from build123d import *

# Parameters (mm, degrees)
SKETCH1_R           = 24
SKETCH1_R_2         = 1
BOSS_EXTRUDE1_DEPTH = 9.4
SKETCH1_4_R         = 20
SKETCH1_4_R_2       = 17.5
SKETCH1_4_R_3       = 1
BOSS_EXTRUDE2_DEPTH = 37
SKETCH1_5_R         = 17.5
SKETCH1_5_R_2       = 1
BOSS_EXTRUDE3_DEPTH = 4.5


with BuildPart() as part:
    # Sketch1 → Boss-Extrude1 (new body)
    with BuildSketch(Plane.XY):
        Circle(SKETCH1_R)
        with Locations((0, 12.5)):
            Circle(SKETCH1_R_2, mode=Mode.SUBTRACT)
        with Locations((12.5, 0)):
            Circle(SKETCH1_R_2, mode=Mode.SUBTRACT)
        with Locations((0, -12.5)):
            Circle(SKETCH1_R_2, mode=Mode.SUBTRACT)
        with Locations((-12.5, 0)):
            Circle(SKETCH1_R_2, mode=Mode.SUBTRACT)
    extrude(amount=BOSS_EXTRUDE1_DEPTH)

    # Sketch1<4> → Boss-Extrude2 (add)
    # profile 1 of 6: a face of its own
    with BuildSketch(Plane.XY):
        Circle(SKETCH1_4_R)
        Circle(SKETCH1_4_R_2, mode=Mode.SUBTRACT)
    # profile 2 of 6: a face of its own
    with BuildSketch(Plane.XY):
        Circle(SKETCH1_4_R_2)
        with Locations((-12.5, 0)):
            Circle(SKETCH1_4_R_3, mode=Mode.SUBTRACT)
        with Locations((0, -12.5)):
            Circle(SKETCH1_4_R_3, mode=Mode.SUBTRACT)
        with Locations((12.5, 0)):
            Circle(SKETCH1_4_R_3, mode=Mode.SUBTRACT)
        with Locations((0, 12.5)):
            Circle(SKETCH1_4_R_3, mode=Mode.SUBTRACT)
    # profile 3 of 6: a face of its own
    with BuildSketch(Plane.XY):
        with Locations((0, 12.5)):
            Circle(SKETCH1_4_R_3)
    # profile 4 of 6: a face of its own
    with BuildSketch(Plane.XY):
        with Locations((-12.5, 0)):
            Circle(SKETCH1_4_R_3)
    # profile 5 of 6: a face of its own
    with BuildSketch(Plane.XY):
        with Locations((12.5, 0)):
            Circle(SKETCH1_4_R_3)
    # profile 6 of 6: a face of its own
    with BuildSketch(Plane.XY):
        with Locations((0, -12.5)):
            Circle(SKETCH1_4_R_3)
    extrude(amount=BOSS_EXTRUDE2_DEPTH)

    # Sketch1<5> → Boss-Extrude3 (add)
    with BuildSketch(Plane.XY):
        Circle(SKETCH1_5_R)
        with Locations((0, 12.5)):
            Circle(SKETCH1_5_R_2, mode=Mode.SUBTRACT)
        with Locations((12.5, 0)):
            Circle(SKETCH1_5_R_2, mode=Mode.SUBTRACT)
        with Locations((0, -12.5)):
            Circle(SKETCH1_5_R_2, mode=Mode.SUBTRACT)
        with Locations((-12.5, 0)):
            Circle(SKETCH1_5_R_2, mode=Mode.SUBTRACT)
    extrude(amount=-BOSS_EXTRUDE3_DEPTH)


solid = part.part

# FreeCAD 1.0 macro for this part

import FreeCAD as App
import Part
import Sketcher

doc = App.newDocument("Part")
body = doc.addObject("PartDesign::Body", "Body")

# Sketch on XY plane
sketch1 = body.newObject("Sketcher::SketchObject", "Sketch")
sketch1.AttachmentSupport = (doc.getObject("XY_Plane"), [""])
sketch1.MapMode = "FlatFace"
sketch1.addGeometry(Part.Circle(App.Vector(0, 0, 0), App.Vector(0, 0, 1), 24), False)
sketch1.addGeometry(Part.Circle(App.Vector(0, -12.5, 0), App.Vector(0, 0, 1), 1), False)
sketch1.addGeometry(Part.Circle(App.Vector(-12.5, 0, 0), App.Vector(0, 0, 1), 1), False)
sketch1.addGeometry(Part.Circle(App.Vector(12.5, 0, 0), App.Vector(0, 0, 1), 1), False)
sketch1.addGeometry(Part.Circle(App.Vector(0, 12.5, 0), App.Vector(0, 0, 1), 1), False)
sketch1.addConstraint(Sketcher.Constraint("Coincident", 0, 3, -1, 1))
sketch1.addConstraint(Sketcher.Constraint("Equal", 1, 2))
sketch1.addConstraint(Sketcher.Constraint("Equal", 2, 3))
sketch1.addConstraint(Sketcher.Constraint("Equal", 3, 4))
sketch1.addConstraint(Sketcher.Constraint("Symmetric", 2, 3, 3, 3, -1, 1))
sketch1.addConstraint(Sketcher.Constraint("Symmetric", 1, 3, 4, 3, -1, 1))
sketch1.addConstraint(Sketcher.Constraint("PointOnObject", 1, 3, -2))
sketch1.addConstraint(Sketcher.Constraint("PointOnObject", 2, 3, -1))
sketch1.addConstraint(Sketcher.Constraint("Diameter", 0, 48.0))
sketch1.addConstraint(Sketcher.Constraint("Diameter", 1, 2.0))
sketch1.addConstraint(Sketcher.Constraint("DistanceX", 2, 3, 3, 3, 25.0))
sketch1.addConstraint(Sketcher.Constraint("DistanceY", 1, 3, 4, 3, 25.0))
pad1 = body.newObject("PartDesign::Pad", "Pad")
pad1.Profile = sketch1
pad1.Length = 9.4

# Sketch on XY plane
sketch2 = body.newObject("Sketcher::SketchObject", "Sketch001")
sketch2.AttachmentSupport = (doc.getObject("XY_Plane"), [""])
sketch2.MapMode = "FlatFace"
sketch2.addGeometry(Part.Circle(App.Vector(0, 0, 0), App.Vector(0, 0, 1), 20), False)
sketch2.addConstraint(Sketcher.Constraint("Coincident", 0, 3, -1, 1))
sketch2.addConstraint(Sketcher.Constraint("Diameter", 0, 40.0))
pad2 = body.newObject("PartDesign::Pad", "Pad001")
pad2.Profile = sketch2
pad2.Length = 37

# Sketch on XY plane
sketch3 = body.newObject("Sketcher::SketchObject", "Sketch002")
sketch3.AttachmentSupport = (doc.getObject("XY_Plane"), [""])
sketch3.MapMode = "FlatFace"
sketch3.addGeometry(Part.Circle(App.Vector(0, 0, 0), App.Vector(0, 0, 1), 17.5), False)
sketch3.addGeometry(Part.Circle(App.Vector(0, -12.5, 0), App.Vector(0, 0, 1), 1), False)
sketch3.addGeometry(Part.Circle(App.Vector(-12.5, 0, 0), App.Vector(0, 0, 1), 1), False)
sketch3.addGeometry(Part.Circle(App.Vector(12.5, 0, 0), App.Vector(0, 0, 1), 1), False)
sketch3.addGeometry(Part.Circle(App.Vector(0, 12.5, 0), App.Vector(0, 0, 1), 1), False)
sketch3.addConstraint(Sketcher.Constraint("Coincident", 0, 3, -1, 1))
sketch3.addConstraint(Sketcher.Constraint("Equal", 1, 2))
sketch3.addConstraint(Sketcher.Constraint("Equal", 2, 3))
sketch3.addConstraint(Sketcher.Constraint("Equal", 3, 4))
sketch3.addConstraint(Sketcher.Constraint("Symmetric", 2, 3, 3, 3, -1, 1))
sketch3.addConstraint(Sketcher.Constraint("Symmetric", 1, 3, 4, 3, -1, 1))
sketch3.addConstraint(Sketcher.Constraint("PointOnObject", 1, 3, -2))
sketch3.addConstraint(Sketcher.Constraint("PointOnObject", 2, 3, -1))
sketch3.addConstraint(Sketcher.Constraint("Diameter", 0, 35.0))
sketch3.addConstraint(Sketcher.Constraint("Diameter", 1, 2.0))
sketch3.addConstraint(Sketcher.Constraint("DistanceX", 2, 3, 3, 3, 25.0))
sketch3.addConstraint(Sketcher.Constraint("DistanceY", 1, 3, 4, 3, 25.0))
pad3 = body.newObject("PartDesign::Pad", "Pad002")
pad3.Profile = sketch3
pad3.Length = 4.5
pad3.Reversed = True

doc.recompute()
